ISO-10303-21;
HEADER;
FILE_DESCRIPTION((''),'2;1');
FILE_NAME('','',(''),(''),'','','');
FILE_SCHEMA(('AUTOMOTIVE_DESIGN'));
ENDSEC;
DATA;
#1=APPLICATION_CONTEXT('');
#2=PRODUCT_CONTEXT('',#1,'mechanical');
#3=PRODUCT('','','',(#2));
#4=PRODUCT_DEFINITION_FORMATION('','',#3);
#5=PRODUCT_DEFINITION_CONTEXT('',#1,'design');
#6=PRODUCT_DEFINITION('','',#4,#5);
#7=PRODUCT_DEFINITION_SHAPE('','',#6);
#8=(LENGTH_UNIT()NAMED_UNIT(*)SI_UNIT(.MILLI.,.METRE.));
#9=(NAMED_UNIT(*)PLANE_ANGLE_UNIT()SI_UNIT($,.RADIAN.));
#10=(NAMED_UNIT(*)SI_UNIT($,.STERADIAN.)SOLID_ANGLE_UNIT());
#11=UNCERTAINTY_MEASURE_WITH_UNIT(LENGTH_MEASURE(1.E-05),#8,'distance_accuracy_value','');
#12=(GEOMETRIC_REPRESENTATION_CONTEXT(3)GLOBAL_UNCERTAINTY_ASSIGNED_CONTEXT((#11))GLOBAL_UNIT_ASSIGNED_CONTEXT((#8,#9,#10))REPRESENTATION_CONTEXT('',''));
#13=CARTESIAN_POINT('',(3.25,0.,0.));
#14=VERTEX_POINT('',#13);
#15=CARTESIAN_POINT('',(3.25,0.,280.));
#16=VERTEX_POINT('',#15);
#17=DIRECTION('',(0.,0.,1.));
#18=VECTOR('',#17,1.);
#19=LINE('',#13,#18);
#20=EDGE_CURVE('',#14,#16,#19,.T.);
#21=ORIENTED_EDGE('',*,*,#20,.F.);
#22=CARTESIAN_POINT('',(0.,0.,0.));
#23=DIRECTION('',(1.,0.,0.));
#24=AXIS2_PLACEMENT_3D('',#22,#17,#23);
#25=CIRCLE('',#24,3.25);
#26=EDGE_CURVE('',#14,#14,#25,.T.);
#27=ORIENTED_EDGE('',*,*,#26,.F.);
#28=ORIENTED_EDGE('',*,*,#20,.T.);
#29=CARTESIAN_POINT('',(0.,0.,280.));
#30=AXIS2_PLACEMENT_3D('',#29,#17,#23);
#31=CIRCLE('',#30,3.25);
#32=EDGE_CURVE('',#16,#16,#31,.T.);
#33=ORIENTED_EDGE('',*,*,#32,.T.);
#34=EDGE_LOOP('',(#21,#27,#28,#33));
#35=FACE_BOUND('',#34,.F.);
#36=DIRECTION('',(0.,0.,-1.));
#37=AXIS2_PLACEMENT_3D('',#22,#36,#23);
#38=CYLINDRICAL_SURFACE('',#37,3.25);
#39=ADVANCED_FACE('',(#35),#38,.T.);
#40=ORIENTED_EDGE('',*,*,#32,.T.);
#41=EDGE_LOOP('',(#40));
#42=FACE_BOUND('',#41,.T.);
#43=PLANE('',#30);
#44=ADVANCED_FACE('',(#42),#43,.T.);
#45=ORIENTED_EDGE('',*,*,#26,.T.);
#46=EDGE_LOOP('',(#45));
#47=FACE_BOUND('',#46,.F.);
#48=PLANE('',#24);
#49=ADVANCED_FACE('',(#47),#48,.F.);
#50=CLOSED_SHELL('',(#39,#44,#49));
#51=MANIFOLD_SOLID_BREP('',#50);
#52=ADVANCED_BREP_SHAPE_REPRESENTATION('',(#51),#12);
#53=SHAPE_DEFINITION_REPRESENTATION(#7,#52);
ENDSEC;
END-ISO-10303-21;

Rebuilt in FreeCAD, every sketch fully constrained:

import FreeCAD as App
import Part
import Sketcher

V = App.Vector

doc = App.newDocument("Part")
body = doc.addObject("PartDesign::Body", "Body")

# Sketch on XY plane
sketch1 = body.newObject("Sketcher::SketchObject", "Sketch")
sketch1.AttachmentSupport = (doc.getObject("XY_Plane"), [""])
sketch1.MapMode = "FlatFace"
sketch1.addGeometry(Part.Circle(V(0, 0, 0), V(0, 0, 1), 3.2), False)
sketch1.addConstraint(Sketcher.Constraint("Coincident", 0, 3, -1, 1))
sketch1.addConstraint(Sketcher.Constraint("Diameter", 0, 6.5))
pad1 = body.newObject("PartDesign::Pad", "Pad")
pad1.Profile = sketch1
pad1.Length = 280

doc.recompute()
